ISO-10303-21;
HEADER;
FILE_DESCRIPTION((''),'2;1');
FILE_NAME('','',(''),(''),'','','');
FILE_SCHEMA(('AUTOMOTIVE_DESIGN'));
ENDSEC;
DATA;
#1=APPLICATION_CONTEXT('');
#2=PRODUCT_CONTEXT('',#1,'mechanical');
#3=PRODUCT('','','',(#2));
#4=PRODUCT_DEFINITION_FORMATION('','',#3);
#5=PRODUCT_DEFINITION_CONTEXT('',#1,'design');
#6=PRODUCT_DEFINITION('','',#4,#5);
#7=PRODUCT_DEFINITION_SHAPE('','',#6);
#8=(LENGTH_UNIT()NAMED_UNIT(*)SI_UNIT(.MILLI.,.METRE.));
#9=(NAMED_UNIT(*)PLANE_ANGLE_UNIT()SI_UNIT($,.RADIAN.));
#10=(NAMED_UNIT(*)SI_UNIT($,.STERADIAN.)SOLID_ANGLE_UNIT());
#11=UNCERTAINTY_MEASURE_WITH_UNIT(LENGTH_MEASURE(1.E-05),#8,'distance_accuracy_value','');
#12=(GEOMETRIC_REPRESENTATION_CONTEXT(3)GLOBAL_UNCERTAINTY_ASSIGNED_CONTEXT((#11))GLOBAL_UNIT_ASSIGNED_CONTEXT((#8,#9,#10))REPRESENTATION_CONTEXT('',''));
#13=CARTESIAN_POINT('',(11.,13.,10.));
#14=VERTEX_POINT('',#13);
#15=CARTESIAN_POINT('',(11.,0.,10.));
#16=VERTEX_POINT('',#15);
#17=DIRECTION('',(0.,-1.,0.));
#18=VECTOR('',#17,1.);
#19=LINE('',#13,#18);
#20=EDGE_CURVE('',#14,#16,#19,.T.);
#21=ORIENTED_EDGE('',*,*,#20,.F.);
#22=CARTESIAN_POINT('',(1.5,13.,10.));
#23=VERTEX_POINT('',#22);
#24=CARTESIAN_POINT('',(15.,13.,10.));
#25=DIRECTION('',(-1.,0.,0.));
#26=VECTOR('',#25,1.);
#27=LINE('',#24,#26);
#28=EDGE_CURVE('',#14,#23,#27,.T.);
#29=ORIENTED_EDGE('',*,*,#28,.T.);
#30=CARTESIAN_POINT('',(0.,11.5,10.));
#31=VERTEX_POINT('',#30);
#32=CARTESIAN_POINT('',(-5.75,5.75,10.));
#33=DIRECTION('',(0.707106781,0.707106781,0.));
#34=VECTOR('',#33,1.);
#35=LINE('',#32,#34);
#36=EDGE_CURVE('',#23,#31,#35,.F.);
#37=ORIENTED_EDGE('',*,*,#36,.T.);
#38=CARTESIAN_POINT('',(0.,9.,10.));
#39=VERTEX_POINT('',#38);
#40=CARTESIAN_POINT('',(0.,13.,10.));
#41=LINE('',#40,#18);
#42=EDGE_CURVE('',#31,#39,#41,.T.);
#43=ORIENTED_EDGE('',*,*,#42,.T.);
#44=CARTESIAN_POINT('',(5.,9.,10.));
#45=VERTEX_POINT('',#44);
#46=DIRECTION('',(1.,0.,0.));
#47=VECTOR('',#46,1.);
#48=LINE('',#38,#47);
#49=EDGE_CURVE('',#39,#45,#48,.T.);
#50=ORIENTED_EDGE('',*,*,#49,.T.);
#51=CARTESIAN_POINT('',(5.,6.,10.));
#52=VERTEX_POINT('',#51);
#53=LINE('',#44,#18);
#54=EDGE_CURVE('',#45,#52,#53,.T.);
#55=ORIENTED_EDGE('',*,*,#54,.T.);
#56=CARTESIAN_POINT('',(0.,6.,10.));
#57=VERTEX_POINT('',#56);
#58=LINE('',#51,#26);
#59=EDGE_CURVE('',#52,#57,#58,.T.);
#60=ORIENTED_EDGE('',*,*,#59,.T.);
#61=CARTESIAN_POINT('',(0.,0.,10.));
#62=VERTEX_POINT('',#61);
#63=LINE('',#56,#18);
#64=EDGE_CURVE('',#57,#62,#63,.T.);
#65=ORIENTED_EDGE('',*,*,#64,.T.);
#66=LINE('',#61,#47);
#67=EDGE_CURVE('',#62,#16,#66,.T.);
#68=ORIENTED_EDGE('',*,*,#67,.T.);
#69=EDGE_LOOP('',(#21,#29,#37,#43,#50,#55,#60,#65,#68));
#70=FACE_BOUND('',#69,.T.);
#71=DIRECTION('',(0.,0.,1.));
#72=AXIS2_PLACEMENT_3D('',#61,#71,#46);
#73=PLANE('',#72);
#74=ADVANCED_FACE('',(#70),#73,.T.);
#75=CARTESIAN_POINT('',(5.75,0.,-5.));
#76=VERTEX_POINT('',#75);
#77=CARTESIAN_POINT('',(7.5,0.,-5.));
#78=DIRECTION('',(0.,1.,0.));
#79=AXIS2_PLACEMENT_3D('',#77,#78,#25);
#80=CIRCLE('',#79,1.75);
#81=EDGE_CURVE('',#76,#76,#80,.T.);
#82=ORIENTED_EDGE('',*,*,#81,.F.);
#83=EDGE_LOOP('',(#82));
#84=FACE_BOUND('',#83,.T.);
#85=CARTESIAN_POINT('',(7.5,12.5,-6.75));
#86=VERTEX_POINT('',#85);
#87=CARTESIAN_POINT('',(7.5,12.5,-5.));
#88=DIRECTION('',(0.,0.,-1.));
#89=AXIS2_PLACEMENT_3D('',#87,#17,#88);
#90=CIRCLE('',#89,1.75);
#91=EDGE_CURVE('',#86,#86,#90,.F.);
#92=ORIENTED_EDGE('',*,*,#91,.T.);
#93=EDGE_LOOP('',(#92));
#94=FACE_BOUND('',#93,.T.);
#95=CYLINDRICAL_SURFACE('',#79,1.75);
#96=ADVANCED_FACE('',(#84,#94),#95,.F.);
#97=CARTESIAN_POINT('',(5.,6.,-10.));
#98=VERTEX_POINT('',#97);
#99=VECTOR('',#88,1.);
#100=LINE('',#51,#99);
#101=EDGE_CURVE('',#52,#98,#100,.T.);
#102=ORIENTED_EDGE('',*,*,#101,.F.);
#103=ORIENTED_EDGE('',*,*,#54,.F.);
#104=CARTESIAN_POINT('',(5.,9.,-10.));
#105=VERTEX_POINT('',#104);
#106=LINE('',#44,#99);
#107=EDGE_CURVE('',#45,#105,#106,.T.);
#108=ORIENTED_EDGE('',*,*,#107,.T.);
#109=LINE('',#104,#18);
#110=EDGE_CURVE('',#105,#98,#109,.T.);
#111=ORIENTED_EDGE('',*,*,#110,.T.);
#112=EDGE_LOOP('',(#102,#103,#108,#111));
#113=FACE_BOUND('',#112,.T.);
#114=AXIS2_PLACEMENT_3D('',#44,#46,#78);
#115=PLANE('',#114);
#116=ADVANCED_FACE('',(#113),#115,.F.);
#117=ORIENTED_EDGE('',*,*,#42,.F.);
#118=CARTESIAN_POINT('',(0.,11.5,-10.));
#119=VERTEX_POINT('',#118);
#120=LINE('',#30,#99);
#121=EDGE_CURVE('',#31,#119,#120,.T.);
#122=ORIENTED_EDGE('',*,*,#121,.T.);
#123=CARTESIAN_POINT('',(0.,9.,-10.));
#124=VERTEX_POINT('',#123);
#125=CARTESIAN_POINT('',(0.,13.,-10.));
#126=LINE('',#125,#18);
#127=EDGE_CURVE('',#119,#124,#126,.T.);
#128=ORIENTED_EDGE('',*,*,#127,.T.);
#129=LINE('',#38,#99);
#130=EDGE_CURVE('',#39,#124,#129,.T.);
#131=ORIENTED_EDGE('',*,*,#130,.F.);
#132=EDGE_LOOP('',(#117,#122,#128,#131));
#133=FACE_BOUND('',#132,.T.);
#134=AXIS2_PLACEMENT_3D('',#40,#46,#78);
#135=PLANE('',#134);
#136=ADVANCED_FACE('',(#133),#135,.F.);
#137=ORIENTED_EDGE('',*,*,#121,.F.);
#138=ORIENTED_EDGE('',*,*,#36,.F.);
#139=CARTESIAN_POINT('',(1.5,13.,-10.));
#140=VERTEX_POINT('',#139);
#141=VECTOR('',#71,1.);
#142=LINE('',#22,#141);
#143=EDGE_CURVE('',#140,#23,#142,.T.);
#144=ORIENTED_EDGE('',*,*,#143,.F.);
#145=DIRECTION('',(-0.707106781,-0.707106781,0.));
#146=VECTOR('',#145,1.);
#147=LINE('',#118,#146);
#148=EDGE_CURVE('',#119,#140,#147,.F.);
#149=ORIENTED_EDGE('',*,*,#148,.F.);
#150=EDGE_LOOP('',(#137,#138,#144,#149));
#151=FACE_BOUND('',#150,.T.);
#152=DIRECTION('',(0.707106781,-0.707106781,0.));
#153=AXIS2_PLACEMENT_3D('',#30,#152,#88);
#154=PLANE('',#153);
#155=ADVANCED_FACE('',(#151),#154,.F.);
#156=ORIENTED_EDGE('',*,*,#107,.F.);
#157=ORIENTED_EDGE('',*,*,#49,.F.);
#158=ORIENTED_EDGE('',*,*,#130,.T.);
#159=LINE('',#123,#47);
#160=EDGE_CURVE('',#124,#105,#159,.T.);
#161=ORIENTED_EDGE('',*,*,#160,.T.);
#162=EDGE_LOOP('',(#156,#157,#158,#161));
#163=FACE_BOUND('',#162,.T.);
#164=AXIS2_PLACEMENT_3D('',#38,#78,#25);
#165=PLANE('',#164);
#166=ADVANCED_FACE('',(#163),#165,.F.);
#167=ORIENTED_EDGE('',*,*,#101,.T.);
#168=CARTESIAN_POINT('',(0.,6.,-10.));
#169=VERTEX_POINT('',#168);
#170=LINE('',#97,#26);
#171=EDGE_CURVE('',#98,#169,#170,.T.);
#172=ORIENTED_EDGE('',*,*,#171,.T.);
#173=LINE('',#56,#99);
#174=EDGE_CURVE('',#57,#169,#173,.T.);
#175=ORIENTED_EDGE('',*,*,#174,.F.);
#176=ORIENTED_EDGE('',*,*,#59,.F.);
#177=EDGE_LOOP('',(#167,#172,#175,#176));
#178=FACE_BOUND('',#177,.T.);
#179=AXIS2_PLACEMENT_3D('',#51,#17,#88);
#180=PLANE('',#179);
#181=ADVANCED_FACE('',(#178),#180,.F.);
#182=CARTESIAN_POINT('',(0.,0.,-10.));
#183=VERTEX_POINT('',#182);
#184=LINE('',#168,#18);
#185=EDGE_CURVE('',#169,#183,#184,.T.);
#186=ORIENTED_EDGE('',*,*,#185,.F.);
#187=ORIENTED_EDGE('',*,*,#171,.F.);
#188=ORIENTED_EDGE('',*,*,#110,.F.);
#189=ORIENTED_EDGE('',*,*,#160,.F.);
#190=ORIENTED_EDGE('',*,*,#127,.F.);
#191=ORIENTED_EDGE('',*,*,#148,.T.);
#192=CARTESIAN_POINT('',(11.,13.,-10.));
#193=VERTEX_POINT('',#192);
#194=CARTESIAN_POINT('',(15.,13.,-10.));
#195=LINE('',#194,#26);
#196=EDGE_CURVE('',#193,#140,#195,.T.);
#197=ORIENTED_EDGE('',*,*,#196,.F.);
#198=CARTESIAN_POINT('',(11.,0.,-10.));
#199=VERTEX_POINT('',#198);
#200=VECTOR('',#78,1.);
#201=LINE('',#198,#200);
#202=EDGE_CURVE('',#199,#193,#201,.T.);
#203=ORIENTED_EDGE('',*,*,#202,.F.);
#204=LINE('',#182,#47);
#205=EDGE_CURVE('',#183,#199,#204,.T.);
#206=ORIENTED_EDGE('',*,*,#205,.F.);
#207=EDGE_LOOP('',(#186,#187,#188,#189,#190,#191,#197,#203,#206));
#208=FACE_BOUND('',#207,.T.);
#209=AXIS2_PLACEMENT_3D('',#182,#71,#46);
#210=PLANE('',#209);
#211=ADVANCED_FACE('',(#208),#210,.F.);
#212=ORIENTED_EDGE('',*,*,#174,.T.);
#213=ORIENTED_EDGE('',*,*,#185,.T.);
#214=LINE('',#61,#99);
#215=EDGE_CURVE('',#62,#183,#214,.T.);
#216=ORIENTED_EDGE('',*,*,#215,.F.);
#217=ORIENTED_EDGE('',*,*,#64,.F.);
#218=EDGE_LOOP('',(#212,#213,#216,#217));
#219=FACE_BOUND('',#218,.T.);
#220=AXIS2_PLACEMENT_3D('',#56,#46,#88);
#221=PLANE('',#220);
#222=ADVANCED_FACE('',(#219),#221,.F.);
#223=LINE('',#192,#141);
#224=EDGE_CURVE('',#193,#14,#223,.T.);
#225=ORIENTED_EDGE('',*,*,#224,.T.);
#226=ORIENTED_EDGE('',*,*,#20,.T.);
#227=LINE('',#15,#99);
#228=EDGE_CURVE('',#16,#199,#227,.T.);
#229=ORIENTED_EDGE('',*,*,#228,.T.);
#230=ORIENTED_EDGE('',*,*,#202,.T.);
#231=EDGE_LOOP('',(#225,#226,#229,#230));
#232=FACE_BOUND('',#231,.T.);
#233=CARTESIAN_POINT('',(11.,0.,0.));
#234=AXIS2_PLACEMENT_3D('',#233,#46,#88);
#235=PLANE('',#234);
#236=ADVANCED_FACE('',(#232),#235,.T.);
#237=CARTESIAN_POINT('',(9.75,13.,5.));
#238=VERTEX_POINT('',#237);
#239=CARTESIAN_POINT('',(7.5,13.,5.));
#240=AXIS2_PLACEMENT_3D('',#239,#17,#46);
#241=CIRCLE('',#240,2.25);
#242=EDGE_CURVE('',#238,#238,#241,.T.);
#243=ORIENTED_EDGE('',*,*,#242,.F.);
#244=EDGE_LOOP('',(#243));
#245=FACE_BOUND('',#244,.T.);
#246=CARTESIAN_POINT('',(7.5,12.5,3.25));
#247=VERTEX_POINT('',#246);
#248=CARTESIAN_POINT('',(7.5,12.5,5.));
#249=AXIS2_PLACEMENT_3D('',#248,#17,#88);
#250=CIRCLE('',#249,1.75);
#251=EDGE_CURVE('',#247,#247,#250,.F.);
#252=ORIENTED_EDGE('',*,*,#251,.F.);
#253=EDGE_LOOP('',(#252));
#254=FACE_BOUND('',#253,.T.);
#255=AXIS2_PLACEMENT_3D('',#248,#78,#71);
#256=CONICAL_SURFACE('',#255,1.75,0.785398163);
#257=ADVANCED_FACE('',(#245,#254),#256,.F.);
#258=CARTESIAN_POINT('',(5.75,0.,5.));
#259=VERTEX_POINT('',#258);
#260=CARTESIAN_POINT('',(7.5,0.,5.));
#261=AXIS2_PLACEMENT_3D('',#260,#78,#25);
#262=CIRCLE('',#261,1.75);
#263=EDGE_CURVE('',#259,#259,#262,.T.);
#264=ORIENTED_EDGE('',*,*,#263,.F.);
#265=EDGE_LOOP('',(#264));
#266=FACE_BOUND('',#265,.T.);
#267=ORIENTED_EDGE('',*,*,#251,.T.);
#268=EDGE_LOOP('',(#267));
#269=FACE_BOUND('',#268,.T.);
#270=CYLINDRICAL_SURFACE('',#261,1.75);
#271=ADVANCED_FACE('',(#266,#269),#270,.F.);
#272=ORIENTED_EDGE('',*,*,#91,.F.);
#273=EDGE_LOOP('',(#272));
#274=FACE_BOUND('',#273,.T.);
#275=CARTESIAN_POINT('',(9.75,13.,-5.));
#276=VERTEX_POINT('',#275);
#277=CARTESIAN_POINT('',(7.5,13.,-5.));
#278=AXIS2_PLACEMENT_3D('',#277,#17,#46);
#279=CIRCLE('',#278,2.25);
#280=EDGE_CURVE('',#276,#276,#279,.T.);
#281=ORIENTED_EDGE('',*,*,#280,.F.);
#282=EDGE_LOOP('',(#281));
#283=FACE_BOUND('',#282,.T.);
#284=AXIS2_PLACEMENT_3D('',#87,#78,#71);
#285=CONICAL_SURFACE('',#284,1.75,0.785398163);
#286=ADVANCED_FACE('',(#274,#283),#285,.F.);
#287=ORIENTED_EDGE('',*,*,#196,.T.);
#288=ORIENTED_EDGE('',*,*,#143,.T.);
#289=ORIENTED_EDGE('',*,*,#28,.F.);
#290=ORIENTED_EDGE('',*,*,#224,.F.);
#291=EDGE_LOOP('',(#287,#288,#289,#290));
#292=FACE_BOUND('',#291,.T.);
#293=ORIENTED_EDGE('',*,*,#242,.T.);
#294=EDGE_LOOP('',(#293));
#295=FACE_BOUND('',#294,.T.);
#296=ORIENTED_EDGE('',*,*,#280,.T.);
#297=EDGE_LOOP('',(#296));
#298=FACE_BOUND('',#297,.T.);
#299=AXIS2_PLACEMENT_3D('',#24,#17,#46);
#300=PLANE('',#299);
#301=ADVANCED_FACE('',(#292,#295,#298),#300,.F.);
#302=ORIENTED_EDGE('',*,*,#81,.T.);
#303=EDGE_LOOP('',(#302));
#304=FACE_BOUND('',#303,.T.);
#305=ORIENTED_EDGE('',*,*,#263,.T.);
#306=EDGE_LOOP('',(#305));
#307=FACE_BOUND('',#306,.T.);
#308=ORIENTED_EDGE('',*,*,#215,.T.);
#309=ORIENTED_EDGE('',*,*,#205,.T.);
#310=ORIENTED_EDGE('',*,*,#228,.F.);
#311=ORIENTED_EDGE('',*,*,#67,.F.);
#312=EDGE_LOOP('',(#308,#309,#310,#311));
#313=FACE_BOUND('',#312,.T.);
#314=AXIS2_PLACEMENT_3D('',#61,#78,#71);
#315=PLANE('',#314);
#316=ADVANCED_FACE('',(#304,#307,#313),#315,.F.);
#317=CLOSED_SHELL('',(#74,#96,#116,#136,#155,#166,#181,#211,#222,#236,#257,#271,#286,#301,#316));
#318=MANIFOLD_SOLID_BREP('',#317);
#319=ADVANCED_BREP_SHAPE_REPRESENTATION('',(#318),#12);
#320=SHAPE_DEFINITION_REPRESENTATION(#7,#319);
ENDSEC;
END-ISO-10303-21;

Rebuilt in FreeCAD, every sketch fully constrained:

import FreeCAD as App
import Part
import Sketcher
from FreeCAD import Vector
Q = App.Units.Quantity


def edges_at(feature, points):
    """Names of the edges that pass closest to the given points."""
    edges = feature.Shape.Edges
    near = lambda p: min(range(len(edges)), key=lambda i: edges[i].distToShape(Part.Vertex(*p))[0])
    return sorted({f"Edge{near(p) + 1}" for p in points})


def add_polygon(sketch, points):
    """Adds a closed chain of lines whose ends are joined by coincident constraints."""
    first, n = sketch.GeometryCount, len(points)
    for a, b in zip(points, points[1:] + points[:1]):
        sketch.addGeometry(Part.LineSegment(App.Vector(*a, 0), App.Vector(*b, 0)), False)
    for i in range(n):
        sketch.addConstraint(Sketcher.Constraint("Coincident", first + i, 2, first + (i + 1) % n, 1))

doc = App.newDocument("Part")
params = doc.addObject("Spreadsheet::Sheet", "Params")
for row, (alias, value) in enumerate([
    ("sketch1_width", "15 mm"),
    ("sketch1_width2", "5 mm"),
    ("sketch1_height", "6 mm"),
    ("sketch1_height2", "3 mm"),
    ("sketch1_height3", "4 mm"),
    ("pad1_length", "20 mm"),
    ("sketch2_diameter", "3.5 mm"),
    ("chamfer_size", "1.5 mm"),
    ("sketch3_width", "5 mm"),
    ("sketch3_height", "13 mm"),
    ("sketch4_width", "13 mm"),
    ("sketch4_height", "20 mm"),
    ("pad2_length", "1 mm"),
    ("chamfer2_size", "0.5 mm"),
], start=1):
    params.set(f"A{row}", alias)
    params.set(f"B{row}", "=" + value)
    params.setAlias(f"B{row}", alias)

body = doc.addObject("PartDesign::Body", "Body")

sketch1 = body.newObject("Sketcher::SketchObject", "Sketch")
sketch1.AttachmentSupport = (doc.getObject("XY_Plane"), [""])
sketch1.MapMode = "FlatFace"
add_polygon(sketch1, [(0, 0), (15, 0), (15, 6), (10, 6), (10, 9), (15, 9), (15, 13), (0, 13), (0, 9), (5, 9), (5, 6), (0, 6)])
sketch1.addConstraint(Sketcher.Constraint("Horizontal", 0))
sketch1.addConstraint(Sketcher.Constraint("Vertical", 1))
sketch1.addConstraint(Sketcher.Constraint("Horizontal", 2))
sketch1.addConstraint(Sketcher.Constraint("Vertical", 3))
sketch1.addConstraint(Sketcher.Constraint("Horizontal", 4))
sketch1.addConstraint(Sketcher.Constraint("Vertical", 5))
sketch1.addConstraint(Sketcher.Constraint("Horizontal", 6))
sketch1.addConstraint(Sketcher.Constraint("Vertical", 7))
sketch1.addConstraint(Sketcher.Constraint("Horizontal", 8))
sketch1.addConstraint(Sketcher.Constraint("Vertical", 9))
sketch1.addConstraint(Sketcher.Constraint("Horizontal", 10))
sketch1.addConstraint(Sketcher.Constraint("Vertical", 11))
sketch1.addConstraint(Sketcher.Constraint("Coincident", 11, 2, -1, 1))
sketch1.addConstraint(Sketcher.Constraint("PointOnObject", 6, 2, -2))
sketch1.addConstraint(Sketcher.Constraint("Horizontal", 4, 2, 7, 2))
sketch1.addConstraint(Sketcher.Constraint("Horizontal", 2, 2, 9, 2))
sketch1.addConstraint(Sketcher.Constraint("Vertical", 1, 2, 4, 2))
sketch1.addConstraint(Sketcher.Constraint("Equal", 4, 8))
sketch1.addConstraint(Sketcher.Constraint("DistanceX", 0, 1, 0, 2, Q("15 mm")))
sketch1.addConstraint(Sketcher.Constraint("DistanceX", 2, 2, 2, 1, Q("5 mm")))
sketch1.addConstraint(Sketcher.Constraint("DistanceY", 1, 1, 1, 2, Q("6 mm")))
sketch1.addConstraint(Sketcher.Constraint("DistanceY", 3, 1, 3, 2, Q("3 mm")))
sketch1.addConstraint(Sketcher.Constraint("DistanceY", 5, 1, 5, 2, Q("4 mm")))
sketch1.setExpression("Constraints[30]", "Params.sketch1_width")
sketch1.setExpression("Constraints[31]", "Params.sketch1_width2")
sketch1.setExpression("Constraints[32]", "Params.sketch1_height")
sketch1.setExpression("Constraints[33]", "Params.sketch1_height2")
sketch1.setExpression("Constraints[34]", "Params.sketch1_height3")
pad1 = body.newObject("PartDesign::Pad", "Pad")
pad1.Profile = sketch1
pad1.setExpression("Length", "Params.pad1_length")
pad1.Midplane = True

sketch2 = body.newObject("Sketcher::SketchObject", "Sketch001")
sketch2.AttachmentSupport = (doc.getObject("XZ_Plane"), [""])
sketch2.MapMode = "FlatFace"
sketch2.AttachmentOffset = App.Placement(Vector(0, 0, -13), App.Rotation())
sketch2.addGeometry(Part.Circle(Vector(7.5, 5, 0), Vector(0, 0, 1), 1.75), False)
sketch2.addGeometry(Part.Circle(Vector(7.5, -5, 0), Vector(0, 0, 1), 1.75), False)
sketch2.addConstraint(Sketcher.Constraint("Equal", 0, 1))
sketch2.addConstraint(Sketcher.Constraint("Symmetric", 0, 3, 1, 3, -1))
sketch2.addConstraint(Sketcher.Constraint("Diameter", 0, Q("3.5 mm")))
sketch2.addConstraint(Sketcher.Constraint("DistanceY", -1, 1, 0, 3, Q("5 mm")))
sketch2.addConstraint(Sketcher.Constraint("DistanceX", -1, 1, 0, 3, Q("7.5 mm")))
sketch2.setExpression("Constraints[2]", "Params.sketch2_diameter")
pocket1 = body.newObject("PartDesign::Pocket", "Pocket")
pocket1.Profile = sketch2
pocket1.Type = "ThroughAll"
pocket1.Reversed = True
doc.recompute()

chamfer = body.newObject("PartDesign::Chamfer", "Chamfer")
chamfer.Base = (pocket1, edges_at(pocket1, [(0, 13, 0), (15, 13, 0)]))
chamfer.setExpression("Size", "Params.chamfer_size")

sketch3 = body.newObject("Sketcher::SketchObject", "Sketch002")
sketch3.AttachmentSupport = (doc.getObject("XY_Plane"), [""])
sketch3.MapMode = "FlatFace"
sketch3.AttachmentOffset = App.Placement(Vector(0, 0, 10), App.Rotation())
add_polygon(sketch3, [(10, 13), (10, 0), (15, 0), (15, 13)])
sketch3.addConstraint(Sketcher.Constraint("Vertical", 0))
sketch3.addConstraint(Sketcher.Constraint("Horizontal", 1))
sketch3.addConstraint(Sketcher.Constraint("Vertical", 2))
sketch3.addConstraint(Sketcher.Constraint("Horizontal", 3))
sketch3.addConstraint(Sketcher.Constraint("PointOnObject", 0, 2, -1))
sketch3.addConstraint(Sketcher.Constraint("DistanceX", 1, 1, 1, 2, Q("5 mm")))
sketch3.addConstraint(Sketcher.Constraint("DistanceY", 0, 2, 0, 1, Q("13 mm")))
sketch3.addConstraint(Sketcher.Constraint("DistanceX", -1, 1, 0, 2, Q("10 mm")))
sketch3.setExpression("Constraints[9]", "Params.sketch3_width")
sketch3.setExpression("Constraints[10]", "Params.sketch3_height")
pocket2 = body.newObject("PartDesign::Pocket", "Pocket001")
pocket2.Profile = sketch3
pocket2.Type = "ThroughAll"

sketch4 = body.newObject("Sketcher::SketchObject", "Sketch003")
sketch4.AttachmentSupport = (doc.getObject("YZ_Plane"), [""])
sketch4.MapMode = "FlatFace"
sketch4.AttachmentOffset = App.Placement(Vector(0, 0, 10), App.Rotation())
add_polygon(sketch4, [(13, 10), (0, 10), (0, -10), (13, -10)])
sketch4.addConstraint(Sketcher.Constraint("Horizontal", 0))
sketch4.addConstraint(Sketcher.Constraint("Vertical", 1))
sketch4.addConstraint(Sketcher.Constraint("Horizontal", 2))
sketch4.addConstraint(Sketcher.Constraint("Vertical", 3))
sketch4.addConstraint(Sketcher.Constraint("Symmetric", 0, 2, 1, 2, -1, 1))
sketch4.addConstraint(Sketcher.Constraint("DistanceX", 0, 2, 0, 1, Q("13 mm")))
sketch4.addConstraint(Sketcher.Constraint("DistanceY", 1, 2, 1, 1, Q("20 mm")))
sketch4.setExpression("Constraints[9]", "Params.sketch4_width")
sketch4.setExpression("Constraints[10]", "Params.sketch4_height")
pad2 = body.newObject("PartDesign::Pad", "Pad001")
pad2.Profile = sketch4
pad2.setExpression("Length", "Params.pad2_length")
doc.recompute()

chamfer2 = body.newObject("PartDesign::Chamfer", "Chamfer001")
chamfer2.Base = (pad2, edges_at(pad2, [(5.75, 13, 5), (5.75, 13, -5)]))
chamfer2.setExpression("Size", "Params.chamfer2_size")

doc.recompute()
